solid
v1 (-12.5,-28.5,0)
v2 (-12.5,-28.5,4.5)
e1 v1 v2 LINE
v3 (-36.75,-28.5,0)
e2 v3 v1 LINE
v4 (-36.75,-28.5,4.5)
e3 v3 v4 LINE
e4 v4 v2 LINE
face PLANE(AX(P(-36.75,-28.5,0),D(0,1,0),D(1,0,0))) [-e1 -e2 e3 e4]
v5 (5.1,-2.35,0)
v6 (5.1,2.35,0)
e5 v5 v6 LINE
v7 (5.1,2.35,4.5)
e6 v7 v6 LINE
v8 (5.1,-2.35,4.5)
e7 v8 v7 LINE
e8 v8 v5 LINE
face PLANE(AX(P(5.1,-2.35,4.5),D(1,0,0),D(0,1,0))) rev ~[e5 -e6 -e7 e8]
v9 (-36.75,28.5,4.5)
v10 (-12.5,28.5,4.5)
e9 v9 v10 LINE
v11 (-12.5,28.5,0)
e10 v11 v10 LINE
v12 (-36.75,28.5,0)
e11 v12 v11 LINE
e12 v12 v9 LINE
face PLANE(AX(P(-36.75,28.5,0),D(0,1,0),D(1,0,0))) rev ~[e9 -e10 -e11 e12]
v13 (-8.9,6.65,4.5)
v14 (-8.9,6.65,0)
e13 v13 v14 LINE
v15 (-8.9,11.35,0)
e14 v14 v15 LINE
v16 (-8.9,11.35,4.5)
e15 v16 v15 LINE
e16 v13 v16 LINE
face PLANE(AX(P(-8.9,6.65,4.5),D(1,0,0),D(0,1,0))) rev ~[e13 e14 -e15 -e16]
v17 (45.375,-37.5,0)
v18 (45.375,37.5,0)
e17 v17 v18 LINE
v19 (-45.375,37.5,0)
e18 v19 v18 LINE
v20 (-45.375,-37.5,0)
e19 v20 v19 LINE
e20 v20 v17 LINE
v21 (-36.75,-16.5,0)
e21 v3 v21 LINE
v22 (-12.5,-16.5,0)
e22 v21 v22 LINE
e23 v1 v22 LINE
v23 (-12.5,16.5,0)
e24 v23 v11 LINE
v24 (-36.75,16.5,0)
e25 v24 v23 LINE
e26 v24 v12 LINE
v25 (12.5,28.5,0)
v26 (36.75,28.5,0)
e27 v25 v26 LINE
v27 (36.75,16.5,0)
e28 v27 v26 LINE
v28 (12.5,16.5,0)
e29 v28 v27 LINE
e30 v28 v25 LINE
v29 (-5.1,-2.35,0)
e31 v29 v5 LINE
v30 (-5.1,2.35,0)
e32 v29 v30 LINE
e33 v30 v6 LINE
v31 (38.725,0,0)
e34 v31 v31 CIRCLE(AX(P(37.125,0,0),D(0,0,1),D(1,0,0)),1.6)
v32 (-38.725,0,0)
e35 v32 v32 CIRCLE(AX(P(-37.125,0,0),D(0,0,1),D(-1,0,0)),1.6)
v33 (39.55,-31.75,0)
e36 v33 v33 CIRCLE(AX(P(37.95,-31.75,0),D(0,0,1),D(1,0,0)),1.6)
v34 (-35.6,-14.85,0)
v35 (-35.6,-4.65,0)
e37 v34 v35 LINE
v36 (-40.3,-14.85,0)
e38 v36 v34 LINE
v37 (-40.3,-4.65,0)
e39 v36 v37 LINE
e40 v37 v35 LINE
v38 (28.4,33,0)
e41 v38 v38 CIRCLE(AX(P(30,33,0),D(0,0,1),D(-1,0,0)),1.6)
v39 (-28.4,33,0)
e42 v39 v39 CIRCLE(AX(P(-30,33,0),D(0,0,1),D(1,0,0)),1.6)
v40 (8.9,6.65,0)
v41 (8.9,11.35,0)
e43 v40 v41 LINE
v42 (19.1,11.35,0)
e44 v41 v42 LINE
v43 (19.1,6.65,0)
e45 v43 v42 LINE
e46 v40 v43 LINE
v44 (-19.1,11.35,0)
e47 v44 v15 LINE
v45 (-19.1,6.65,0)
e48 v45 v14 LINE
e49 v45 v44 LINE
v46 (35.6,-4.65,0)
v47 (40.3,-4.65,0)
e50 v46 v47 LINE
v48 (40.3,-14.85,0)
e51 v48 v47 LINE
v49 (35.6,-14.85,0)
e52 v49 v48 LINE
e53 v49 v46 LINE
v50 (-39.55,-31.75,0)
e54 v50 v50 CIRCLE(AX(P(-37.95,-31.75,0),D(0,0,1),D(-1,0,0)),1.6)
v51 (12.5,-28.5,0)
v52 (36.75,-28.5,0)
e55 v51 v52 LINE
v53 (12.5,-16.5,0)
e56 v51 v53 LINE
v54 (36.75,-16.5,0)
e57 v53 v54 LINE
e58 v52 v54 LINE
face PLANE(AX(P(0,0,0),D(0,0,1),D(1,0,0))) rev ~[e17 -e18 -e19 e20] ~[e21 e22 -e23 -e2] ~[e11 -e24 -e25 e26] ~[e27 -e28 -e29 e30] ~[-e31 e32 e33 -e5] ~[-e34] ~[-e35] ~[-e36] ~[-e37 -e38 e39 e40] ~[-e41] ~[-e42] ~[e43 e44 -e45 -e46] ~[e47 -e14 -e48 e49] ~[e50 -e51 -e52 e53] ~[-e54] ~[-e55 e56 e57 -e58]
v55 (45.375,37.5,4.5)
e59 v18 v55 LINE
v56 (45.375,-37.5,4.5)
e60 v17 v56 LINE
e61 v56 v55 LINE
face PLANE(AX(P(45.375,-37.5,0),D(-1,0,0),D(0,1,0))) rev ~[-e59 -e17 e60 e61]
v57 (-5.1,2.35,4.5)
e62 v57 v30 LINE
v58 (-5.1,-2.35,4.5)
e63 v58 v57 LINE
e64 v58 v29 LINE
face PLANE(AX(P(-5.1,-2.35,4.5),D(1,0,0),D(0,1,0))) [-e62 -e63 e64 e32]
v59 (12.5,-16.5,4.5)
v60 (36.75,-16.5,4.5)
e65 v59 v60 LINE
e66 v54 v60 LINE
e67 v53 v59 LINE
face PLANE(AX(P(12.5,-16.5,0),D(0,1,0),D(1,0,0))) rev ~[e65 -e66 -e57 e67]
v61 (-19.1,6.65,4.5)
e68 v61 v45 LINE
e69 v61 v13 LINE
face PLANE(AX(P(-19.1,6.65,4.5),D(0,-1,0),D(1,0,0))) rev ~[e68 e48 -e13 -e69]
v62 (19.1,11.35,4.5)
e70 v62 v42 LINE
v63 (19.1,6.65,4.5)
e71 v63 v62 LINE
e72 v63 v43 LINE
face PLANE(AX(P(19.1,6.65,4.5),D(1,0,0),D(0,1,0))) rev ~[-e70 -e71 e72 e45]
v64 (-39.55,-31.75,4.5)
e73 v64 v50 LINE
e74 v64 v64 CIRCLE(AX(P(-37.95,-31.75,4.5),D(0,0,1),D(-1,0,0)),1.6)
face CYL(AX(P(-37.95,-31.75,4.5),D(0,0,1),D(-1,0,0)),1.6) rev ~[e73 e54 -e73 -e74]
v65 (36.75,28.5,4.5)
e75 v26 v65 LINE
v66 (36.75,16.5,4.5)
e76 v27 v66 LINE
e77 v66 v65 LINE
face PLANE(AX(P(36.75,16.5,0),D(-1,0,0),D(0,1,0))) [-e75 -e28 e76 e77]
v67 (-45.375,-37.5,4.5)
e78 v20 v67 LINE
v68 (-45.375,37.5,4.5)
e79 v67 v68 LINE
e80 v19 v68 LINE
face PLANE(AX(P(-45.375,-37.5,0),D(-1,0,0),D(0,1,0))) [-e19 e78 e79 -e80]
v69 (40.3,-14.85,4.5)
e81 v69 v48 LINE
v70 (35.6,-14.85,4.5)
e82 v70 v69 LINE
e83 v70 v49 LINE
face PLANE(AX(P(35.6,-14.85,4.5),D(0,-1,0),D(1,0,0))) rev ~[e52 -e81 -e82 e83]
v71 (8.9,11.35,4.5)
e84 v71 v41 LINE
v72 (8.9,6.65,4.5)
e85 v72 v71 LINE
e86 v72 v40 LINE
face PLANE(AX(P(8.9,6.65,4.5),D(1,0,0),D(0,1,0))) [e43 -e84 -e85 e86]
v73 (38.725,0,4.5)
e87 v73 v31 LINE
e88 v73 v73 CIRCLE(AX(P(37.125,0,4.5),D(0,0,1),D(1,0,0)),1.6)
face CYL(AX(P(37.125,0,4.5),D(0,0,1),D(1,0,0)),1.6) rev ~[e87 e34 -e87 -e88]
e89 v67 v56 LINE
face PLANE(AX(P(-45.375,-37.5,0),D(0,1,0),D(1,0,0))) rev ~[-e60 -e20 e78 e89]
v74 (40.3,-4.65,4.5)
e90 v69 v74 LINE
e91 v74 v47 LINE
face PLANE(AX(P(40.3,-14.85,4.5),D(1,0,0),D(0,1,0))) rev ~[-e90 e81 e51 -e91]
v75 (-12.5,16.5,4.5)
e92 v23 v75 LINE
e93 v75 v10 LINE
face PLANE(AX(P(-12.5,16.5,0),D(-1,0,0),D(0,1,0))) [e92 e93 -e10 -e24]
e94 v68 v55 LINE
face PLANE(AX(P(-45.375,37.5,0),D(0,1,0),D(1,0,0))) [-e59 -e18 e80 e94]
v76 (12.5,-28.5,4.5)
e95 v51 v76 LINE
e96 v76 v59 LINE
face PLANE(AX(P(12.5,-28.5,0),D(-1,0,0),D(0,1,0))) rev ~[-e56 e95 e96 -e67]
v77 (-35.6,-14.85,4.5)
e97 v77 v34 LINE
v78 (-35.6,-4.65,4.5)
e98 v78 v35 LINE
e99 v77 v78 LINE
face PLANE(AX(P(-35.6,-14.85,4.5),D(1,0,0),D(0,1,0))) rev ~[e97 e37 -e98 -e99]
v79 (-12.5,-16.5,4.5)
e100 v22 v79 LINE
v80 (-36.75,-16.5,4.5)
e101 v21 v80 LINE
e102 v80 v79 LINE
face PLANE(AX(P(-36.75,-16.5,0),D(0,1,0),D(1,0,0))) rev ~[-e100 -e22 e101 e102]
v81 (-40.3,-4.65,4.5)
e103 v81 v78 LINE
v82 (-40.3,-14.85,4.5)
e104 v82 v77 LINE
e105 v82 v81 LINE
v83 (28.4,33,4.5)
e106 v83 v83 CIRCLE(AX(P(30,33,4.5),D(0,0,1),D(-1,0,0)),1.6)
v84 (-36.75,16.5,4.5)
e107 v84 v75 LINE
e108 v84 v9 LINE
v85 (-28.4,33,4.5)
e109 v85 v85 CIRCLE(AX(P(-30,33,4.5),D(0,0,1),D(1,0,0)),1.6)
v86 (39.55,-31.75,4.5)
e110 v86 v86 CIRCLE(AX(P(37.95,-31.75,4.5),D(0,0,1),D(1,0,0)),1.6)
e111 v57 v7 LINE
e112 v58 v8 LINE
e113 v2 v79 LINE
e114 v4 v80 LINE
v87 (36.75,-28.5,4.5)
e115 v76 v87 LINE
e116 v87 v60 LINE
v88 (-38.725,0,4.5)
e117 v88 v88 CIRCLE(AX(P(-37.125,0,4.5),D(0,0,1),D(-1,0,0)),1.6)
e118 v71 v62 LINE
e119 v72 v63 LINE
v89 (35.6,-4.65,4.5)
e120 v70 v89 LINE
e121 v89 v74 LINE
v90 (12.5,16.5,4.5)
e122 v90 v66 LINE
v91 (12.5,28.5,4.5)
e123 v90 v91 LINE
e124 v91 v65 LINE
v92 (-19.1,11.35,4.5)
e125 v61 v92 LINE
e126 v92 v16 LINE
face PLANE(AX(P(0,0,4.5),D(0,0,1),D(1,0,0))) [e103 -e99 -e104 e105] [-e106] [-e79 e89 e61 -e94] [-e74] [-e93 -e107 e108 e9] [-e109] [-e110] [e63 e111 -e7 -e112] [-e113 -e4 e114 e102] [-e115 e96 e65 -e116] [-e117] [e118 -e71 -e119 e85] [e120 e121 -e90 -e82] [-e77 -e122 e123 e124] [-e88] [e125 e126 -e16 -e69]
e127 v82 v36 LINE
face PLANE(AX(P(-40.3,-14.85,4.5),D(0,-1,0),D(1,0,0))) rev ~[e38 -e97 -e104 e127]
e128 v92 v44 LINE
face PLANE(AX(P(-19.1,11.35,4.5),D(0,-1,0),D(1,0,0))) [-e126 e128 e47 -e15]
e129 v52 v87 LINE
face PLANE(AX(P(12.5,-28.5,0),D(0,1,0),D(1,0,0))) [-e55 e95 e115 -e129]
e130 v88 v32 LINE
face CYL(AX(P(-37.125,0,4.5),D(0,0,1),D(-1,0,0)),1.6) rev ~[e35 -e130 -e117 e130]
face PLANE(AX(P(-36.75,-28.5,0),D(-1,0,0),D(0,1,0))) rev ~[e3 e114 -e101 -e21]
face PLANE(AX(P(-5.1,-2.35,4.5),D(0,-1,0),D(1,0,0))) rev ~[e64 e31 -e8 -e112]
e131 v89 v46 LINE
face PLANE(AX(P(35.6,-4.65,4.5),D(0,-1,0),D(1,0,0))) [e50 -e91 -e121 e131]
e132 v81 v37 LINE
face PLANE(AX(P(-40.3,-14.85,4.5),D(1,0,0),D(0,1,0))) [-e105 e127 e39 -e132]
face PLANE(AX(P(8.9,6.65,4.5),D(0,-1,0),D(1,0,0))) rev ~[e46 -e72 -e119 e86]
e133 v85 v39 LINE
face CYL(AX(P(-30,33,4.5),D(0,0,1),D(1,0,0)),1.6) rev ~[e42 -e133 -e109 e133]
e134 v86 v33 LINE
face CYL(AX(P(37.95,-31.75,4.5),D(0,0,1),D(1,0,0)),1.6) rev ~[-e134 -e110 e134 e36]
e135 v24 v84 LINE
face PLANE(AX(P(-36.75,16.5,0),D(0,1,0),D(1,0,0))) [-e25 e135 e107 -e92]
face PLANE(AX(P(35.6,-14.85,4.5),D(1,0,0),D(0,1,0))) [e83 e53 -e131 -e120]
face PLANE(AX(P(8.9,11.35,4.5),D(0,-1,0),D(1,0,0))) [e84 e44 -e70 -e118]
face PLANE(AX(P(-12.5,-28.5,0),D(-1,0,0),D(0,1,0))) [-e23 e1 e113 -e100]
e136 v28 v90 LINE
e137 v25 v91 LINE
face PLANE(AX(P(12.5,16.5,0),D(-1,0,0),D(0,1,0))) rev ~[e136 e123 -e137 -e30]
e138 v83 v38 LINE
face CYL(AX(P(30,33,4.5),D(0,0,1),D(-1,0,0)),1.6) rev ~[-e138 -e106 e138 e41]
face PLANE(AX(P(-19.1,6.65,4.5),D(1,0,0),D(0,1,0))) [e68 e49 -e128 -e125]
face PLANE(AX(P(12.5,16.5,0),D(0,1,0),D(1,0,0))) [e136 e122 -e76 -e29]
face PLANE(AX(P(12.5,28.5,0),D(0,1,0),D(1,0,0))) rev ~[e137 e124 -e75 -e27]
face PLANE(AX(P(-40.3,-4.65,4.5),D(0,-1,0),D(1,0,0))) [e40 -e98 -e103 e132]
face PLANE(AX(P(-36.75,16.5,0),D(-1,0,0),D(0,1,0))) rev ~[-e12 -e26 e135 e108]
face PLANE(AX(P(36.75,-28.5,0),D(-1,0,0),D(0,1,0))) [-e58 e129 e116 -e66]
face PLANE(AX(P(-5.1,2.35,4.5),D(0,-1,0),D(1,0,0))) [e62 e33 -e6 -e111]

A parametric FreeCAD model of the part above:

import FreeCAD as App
import Part
import Sketcher

V = App.Vector

doc = App.newDocument("Part")
body = doc.addObject("PartDesign::Body", "Body")

sketch1 = body.newObject("Sketcher::SketchObject", "Sketch")
sketch1.AttachmentSupport = (doc.getObject("XY_Plane"), [""])
sketch1.MapMode = "FlatFace"
sketch1.addGeometry(Part.LineSegment(V(-45, 38, 0), V(-45, -38, 0)), False)
sketch1.addGeometry(Part.LineSegment(V(-45, -38, 0), V(45, -38, 0)), False)
sketch1.addGeometry(Part.LineSegment(V(45, -38, 0), V(45, 38, 0)), False)
sketch1.addGeometry(Part.LineSegment(V(45, 38, 0), V(-45, 38, 0)), False)
sketch1.addGeometry(Part.LineSegment(V(-12, -28, 0), V(-37, -28, 0)), False)
sketch1.addGeometry(Part.LineSegment(V(-37, -28, 0), V(-37, -16, 0)), False)
sketch1.addGeometry(Part.LineSegment(V(-37, -16, 0), V(-12, -16, 0)), False)
sketch1.addGeometry(Part.LineSegment(V(-12, -16, 0), V(-12, -28, 0)), False)
sketch1.addGeometry(Part.LineSegment(V(37, -28, 0), V(12, -28, 0)), False)
sketch1.addGeometry(Part.LineSegment(V(12, -28, 0), V(12, -16, 0)), False)
sketch1.addGeometry(Part.LineSegment(V(12, -16, 0), V(37, -16, 0)), False)
sketch1.addGeometry(Part.LineSegment(V(37, -16, 0), V(37, -28, 0)), False)
sketch1.addGeometry(Part.LineSegment(V(-12, 16, 0), V(-37, 16, 0)), False)
sketch1.addGeometry(Part.LineSegment(V(-37, 16, 0), V(-37, 28, 0)), False)
sketch1.addGeometry(Part.LineSegment(V(-37, 28, 0), V(-12, 28, 0)), False)
sketch1.addGeometry(Part.LineSegment(V(-12, 28, 0), V(-12, 16, 0)), False)
sketch1.addGeometry(Part.LineSegment(V(37, 16, 0), V(12, 16, 0)), False)
sketch1.addGeometry(Part.LineSegment(V(12, 16, 0), V(12, 28, 0)), False)
sketch1.addGeometry(Part.LineSegment(V(12, 28, 0), V(37, 28, 0)), False)
sketch1.addGeometry(Part.LineSegment(V(37, 28, 0), V(37, 16, 0)), False)
sketch1.addConstraint(Sketcher.Constraint("Coincident", 0, 2, 1, 1))
sketch1.addConstraint(Sketcher.Constraint("Coincident", 1, 2, 2, 1))
sketch1.addConstraint(Sketcher.Constraint("Coincident", 2, 2, 3, 1))
sketch1.addConstraint(Sketcher.Constraint("Coincident", 3, 2, 0, 1))
sketch1.addConstraint(Sketcher.Constraint("Coincident", 4, 2, 5, 1))
sketch1.addConstraint(Sketcher.Constraint("Coincident", 5, 2, 6, 1))
sketch1.addConstraint(Sketcher.Constraint("Coincident", 6, 2, 7, 1))
sketch1.addConstraint(Sketcher.Constraint("Coincident", 7, 2, 4, 1))
sketch1.addConstraint(Sketcher.Constraint("Coincident", 8, 2, 9, 1))
sketch1.addConstraint(Sketcher.Constraint("Coincident", 9, 2, 10, 1))
sketch1.addConstraint(Sketcher.Constraint("Coincident", 10, 2, 11, 1))
sketch1.addConstraint(Sketcher.Constraint("Coincident", 11, 2, 8, 1))
sketch1.addConstraint(Sketcher.Constraint("Coincident", 12, 2, 13, 1))
sketch1.addConstraint(Sketcher.Constraint("Coincident", 13, 2, 14, 1))
sketch1.addConstraint(Sketcher.Constraint("Coincident", 14, 2, 15, 1))
sketch1.addConstraint(Sketcher.Constraint("Coincident", 15, 2, 12, 1))
sketch1.addConstraint(Sketcher.Constraint("Coincident", 16, 2, 17, 1))
sketch1.addConstraint(Sketcher.Constraint("Coincident", 17, 2, 18, 1))
sketch1.addConstraint(Sketcher.Constraint("Coincident", 18, 2, 19, 1))
sketch1.addConstraint(Sketcher.Constraint("Coincident", 19, 2, 16, 1))
sketch1.addConstraint(Sketcher.Constraint("Vertical", 0))
sketch1.addConstraint(Sketcher.Constraint("Horizontal", 1))
sketch1.addConstraint(Sketcher.Constraint("Vertical", 2))
sketch1.addConstraint(Sketcher.Constraint("Horizontal", 3))
sketch1.addConstraint(Sketcher.Constraint("Horizontal", 4))
sketch1.addConstraint(Sketcher.Constraint("Vertical", 5))
sketch1.addConstraint(Sketcher.Constraint("Horizontal", 6))
sketch1.addConstraint(Sketcher.Constraint("Vertical", 7))
sketch1.addConstraint(Sketcher.Constraint("Horizontal", 8))
sketch1.addConstraint(Sketcher.Constraint("Vertical", 9))
sketch1.addConstraint(Sketcher.Constraint("Horizontal", 10))
sketch1.addConstraint(Sketcher.Constraint("Vertical", 11))
sketch1.addConstraint(Sketcher.Constraint("Horizontal", 12))
sketch1.addConstraint(Sketcher.Constraint("Vertical", 13))
sketch1.addConstraint(Sketcher.Constraint("Horizontal", 14))
sketch1.addConstraint(Sketcher.Constraint("Vertical", 15))
sketch1.addConstraint(Sketcher.Constraint("Horizontal", 16))
sketch1.addConstraint(Sketcher.Constraint("Vertical", 17))
sketch1.addConstraint(Sketcher.Constraint("Horizontal", 18))
sketch1.addConstraint(Sketcher.Constraint("Vertical", 19))
sketch1.addConstraint(Sketcher.Constraint("Symmetric", 0, 2, 2, 2, -1, 1))
sketch1.addConstraint(Sketcher.Constraint("Symmetric", 10, 2, 12, 2, -1, 1))
sketch1.addConstraint(Sketcher.Constraint("Symmetric", 8, 2, 14, 2, -1, 1))
sketch1.addConstraint(Sketcher.Constraint("Symmetric", 6, 2, 16, 2, -1, 1))
sketch1.addConstraint(Sketcher.Constraint("Symmetric", 4, 2, 18, 2, -1, 1))
sketch1.addConstraint(Sketcher.Constraint("Symmetric", 7, 2, 8, 2, -2))
sketch1.addConstraint(Sketcher.Constraint("Symmetric", 5, 2, 10, 2, -2))
sketch1.addConstraint(Sketcher.Constraint("DistanceY", 0, 2, 0, 1, 75.0))
sketch1.addConstraint(Sketcher.Constraint("DistanceY", 5, 1, 5, 2, 12.0))
sketch1.addConstraint(Sketcher.Constraint("DistanceY", 0, 2, 4, 2, 9.0))
sketch1.addConstraint(Sketcher.Constraint("DistanceX", 7, 2, 8, 2, 25.0))
sketch1.addConstraint(Sketcher.Constraint("DistanceX", 1, 1, 1, 2, 90.75))
sketch1.addConstraint(Sketcher.Constraint("DistanceX", 4, 2, 4, 1, 24.25))
pad1 = body.newObject("PartDesign::Pad", "Pad")
pad1.Profile = sketch1
pad1.Length = 4.5

sketch2 = body.newObject("Sketcher::SketchObject", "Sketch001")
sketch2.AttachmentSupport = (doc.getObject("XY_Plane"), [""])
sketch2.MapMode = "FlatFace"
sketch2.AttachmentOffset = App.Placement(V(0, 0, 4.5), App.Rotation())
sketch2.addGeometry(Part.Circle(V(-30, 33, 0), V(0, 0, 1), 1.6), False)
sketch2.addGeometry(Part.Circle(V(30, 33, 0), V(0, 0, 1), 1.6), False)
sketch2.addGeometry(Part.Circle(V(37.1, 0, 0), V(0, 0, 1), 1.6), False)
sketch2.addGeometry(Part.Circle(V(-37.1, 0, 0), V(0, 0, 1), 1.6), False)
sketch2.addConstraint(Sketcher.Constraint("Equal", 0, 1))
sketch2.addConstraint(Sketcher.Constraint("Equal", 1, 2))
sketch2.addConstraint(Sketcher.Constraint("Equal", 2, 3))
sketch2.addConstraint(Sketcher.Constraint("Symmetric", 2, 3, 3, 3, -1, 1))
sketch2.addConstraint(Sketcher.Constraint("Symmetric", 0, 3, 1, 3, -2))
sketch2.addConstraint(Sketcher.Constraint("PointOnObject", 2, 3, -1))
sketch2.addConstraint(Sketcher.Constraint("Diameter", 0, 3.2))
sketch2.addConstraint(Sketcher.Constraint("DistanceX", 0, 3, -1, 1, 30.0))
sketch2.addConstraint(Sketcher.Constraint("DistanceY", -1, 1, 0, 3, 33.0))
sketch2.addConstraint(Sketcher.Constraint("DistanceX", 3, 3, 2, 3, 74.25))
pocket1 = body.newObject("PartDesign::Pocket", "Pocket")
pocket1.Profile = sketch2
pocket1.Type = "ThroughAll"

sketch3 = body.newObject("Sketcher::SketchObject", "Sketch002")
sketch3.AttachmentSupport = (doc.getObject("XY_Plane"), [""])
sketch3.MapMode = "FlatFace"
sketch3.AttachmentOffset = App.Placement(V(0, 0, 4.5), App.Rotation())
sketch3.addGeometry(Part.LineSegment(V(-19.1, 11.3, 0), V(-19.1, 6.7, 0)), False)
sketch3.addGeometry(Part.LineSegment(V(-19.1, 6.7, 0), V(-8.9, 6.7, 0)), False)
sketch3.addGeometry(Part.LineSegment(V(-8.9, 6.7, 0), V(-8.9, 11.3, 0)), False)
sketch3.addGeometry(Part.LineSegment(V(-8.9, 11.3, 0), V(-19.1, 11.3, 0)), False)
sketch3.addGeometry(Part.LineSegment(V(8.9, 11.3, 0), V(8.9, 6.7, 0)), False)
sketch3.addGeometry(Part.LineSegment(V(8.9, 6.7, 0), V(19.1, 6.7, 0)), False)
sketch3.addGeometry(Part.LineSegment(V(19.1, 6.7, 0), V(19.1, 11.3, 0)), False)
sketch3.addGeometry(Part.LineSegment(V(19.1, 11.3, 0), V(8.9, 11.3, 0)), False)
sketch3.addConstraint(Sketcher.Constraint("Coincident", 0, 2, 1, 1))
sketch3.addConstraint(Sketcher.Constraint("Coincident", 1, 2, 2, 1))
sketch3.addConstraint(Sketcher.Constraint("Coincident", 2, 2, 3, 1))
sketch3.addConstraint(Sketcher.Constraint("Coincident", 3, 2, 0, 1))
sketch3.addConstraint(Sketcher.Constraint("Coincident", 4, 2, 5, 1))
sketch3.addConstraint(Sketcher.Constraint("Coincident", 5, 2, 6, 1))
sketch3.addConstraint(Sketcher.Constraint("Coincident", 6, 2, 7, 1))
sketch3.addConstraint(Sketcher.Constraint("Coincident", 7, 2, 4, 1))
sketch3.addConstraint(Sketcher.Constraint("Vertical", 0))
sketch3.addConstraint(Sketcher.Constraint("Horizontal", 1))
sketch3.addConstraint(Sketcher.Constraint("Vertical", 2))
sketch3.addConstraint(Sketcher.Constraint("Horizontal", 3))
sketch3.addConstraint(Sketcher.Constraint("Vertical", 4))
sketch3.addConstraint(Sketcher.Constraint("Horizontal", 5))
sketch3.addConstraint(Sketcher.Constraint("Vertical", 6))
sketch3.addConstraint(Sketcher.Constraint("Horizontal", 7))
sketch3.addConstraint(Sketcher.Constraint("Symmetric", 1, 2, 4, 2, -2))
sketch3.addConstraint(Sketcher.Constraint("Symmetric", 3, 2, 6, 2, -2))
sketch3.addConstraint(Sketcher.Constraint("DistanceX", 1, 1, 1, 2, 10.2))
sketch3.addConstraint(Sketcher.Constraint("DistanceY", 0, 2, 0, 1, 4.7))
sketch3.addConstraint(Sketcher.Constraint("DistanceX", 0, 2, 4, 2, 28.0))
sketch3.addConstraint(Sketcher.Constraint("DistanceY", -1, 1, 0, 2, 6.65))
pocket2 = body.newObject("PartDesign::Pocket", "Pocket001")
pocket2.Profile = sketch3
pocket2.Type = "ThroughAll"

sketch4 = body.newObject("Sketcher::SketchObject", "Sketch003")
sketch4.AttachmentSupport = (doc.getObject("XY_Plane"), [""])
sketch4.MapMode = "FlatFace"
sketch4.AttachmentOffset = App.Placement(V(0, 0, 4.5), App.Rotation())
sketch4.addGeometry(Part.LineSegment(V(-5.1, 2.4, 0), V(-5.1, -2.4, 0)), False)
sketch4.addGeometry(Part.LineSegment(V(-5.1, -2.4, 0), V(5.1, -2.4, 0)), False)
sketch4.addGeometry(Part.LineSegment(V(5.1, -2.4, 0), V(5.1, 2.4, 0)), False)
sketch4.addGeometry(Part.LineSegment(V(5.1, 2.4, 0), V(-5.1, 2.4, 0)), False)
sketch4.addConstraint(Sketcher.Constraint("Coincident", 0, 2, 1, 1))
sketch4.addConstraint(Sketcher.Constraint("Coincident", 1, 2, 2, 1))
sketch4.addConstraint(Sketcher.Constraint("Coincident", 2, 2, 3, 1))
sketch4.addConstraint(Sketcher.Constraint("Coincident", 3, 2, 0, 1))
sketch4.addConstraint(Sketcher.Constraint("Vertical", 0))
sketch4.addConstraint(Sketcher.Constraint("Horizontal", 1))
sketch4.addConstraint(Sketcher.Constraint("Vertical", 2))
sketch4.addConstraint(Sketcher.Constraint("Horizontal", 3))
sketch4.addConstraint(Sketcher.Constraint("Symmetric", 0, 2, 2, 2, -1, 1))
sketch4.addConstraint(Sketcher.Constraint("DistanceX", 1, 1, 1, 2, 10.2))
sketch4.addConstraint(Sketcher.Constraint("DistanceY", 0, 2, 0, 1, 4.7))
pocket3 = body.newObject("PartDesign::Pocket", "Pocket002")
pocket3.Profile = sketch4
pocket3.Type = "ThroughAll"

sketch5 = body.newObject("Sketcher::SketchObject", "Sketch004")
sketch5.AttachmentSupport = (doc.getObject("XY_Plane"), [""])
sketch5.MapMode = "FlatFace"
sketch5.AttachmentOffset = App.Placement(V(0, 0, 4.5), App.Rotation())
sketch5.addGeometry(Part.Circle(V(38, -31.8, 0), V(0, 0, 1), 1.6), False)
sketch5.addGeometry(Part.Circle(V(-38, -31.8, 0), V(0, 0, 1), 1.6), False)
sketch5.addGeometry(Part.LineSegment(V(35.6, -4.7, 0), V(35.6, -14.8, 0)), False)
sketch5.addGeometry(Part.LineSegment(V(35.6, -14.8, 0), V(40.3, -14.8, 0)), False)
sketch5.addGeometry(Part.LineSegment(V(40.3, -14.8, 0), V(40.3, -4.7, 0)), False)
sketch5.addGeometry(Part.LineSegment(V(40.3, -4.7, 0), V(35.6, -4.7, 0)), False)
sketch5.addGeometry(Part.LineSegment(V(-40.3, -4.7, 0), V(-40.3, -14.8, 0)), False)
sketch5.addGeometry(Part.LineSegment(V(-40.3, -14.8, 0), V(-35.6, -14.8, 0)), False)
sketch5.addGeometry(Part.LineSegment(V(-35.6, -14.8, 0), V(-35.6, -4.7, 0)), False)
sketch5.addGeometry(Part.LineSegment(V(-35.6, -4.7, 0), V(-40.3, -4.7, 0)), False)
sketch5.addConstraint(Sketcher.Constraint("Coincident", 2, 2, 3, 1))
sketch5.addConstraint(Sketcher.Constraint("Coincident", 3, 2, 4, 1))
sketch5.addConstraint(Sketcher.Constraint("Coincident", 4, 2, 5, 1))
sketch5.addConstraint(Sketcher.Constraint("Coincident", 5, 2, 2, 1))
sketch5.addConstraint(Sketcher.Constraint("Coincident", 6, 2, 7, 1))
sketch5.addConstraint(Sketcher.Constraint("Coincident", 7, 2, 8, 1))
sketch5.addConstraint(Sketcher.Constraint("Coincident", 8, 2, 9, 1))
sketch5.addConstraint(Sketcher.Constraint("Coincident", 9, 2, 6, 1))
sketch5.addConstraint(Sketcher.Constraint("Vertical", 2))
sketch5.addConstraint(Sketcher.Constraint("Horizontal", 3))
sketch5.addConstraint(Sketcher.Constraint("Vertical", 4))
sketch5.addConstraint(Sketcher.Constraint("Horizontal", 5))
sketch5.addConstraint(Sketcher.Constraint("Vertical", 6))
sketch5.addConstraint(Sketcher.Constraint("Horizontal", 7))
sketch5.addConstraint(Sketcher.Constraint("Vertical", 8))
sketch5.addConstraint(Sketcher.Constraint("Horizontal", 9))
sketch5.addConstraint(Sketcher.Constraint("Equal", 0, 1))
sketch5.addConstraint(Sketcher.Constraint("Symmetric", 0, 3, 1, 3, -2))
sketch5.addConstraint(Sketcher.Constraint("Symmetric", 3, 2, 6, 2, -2))
sketch5.addConstraint(Sketcher.Constraint("Symmetric", 5, 2, 8, 2, -2))
sketch5.addConstraint(Sketcher.Constraint("Diameter", 0, 3.2))
sketch5.addConstraint(Sketcher.Constraint("DistanceX", 3, 1, 3, 2, 4.7))
sketch5.addConstraint(Sketcher.Constraint("DistanceY", 2, 2, 2, 1, 10.2))
sketch5.addConstraint(Sketcher.Constraint("DistanceX", -1, 1, 2, 2, 35.6))
sketch5.addConstraint(Sketcher.Constraint("DistanceX", 1, 3, 0, 3, 75.9))
sketch5.addConstraint(Sketcher.Constraint("DistanceY", 0, 3, 2, 2, 16.9))
sketch5.addConstraint(Sketcher.Constraint("DistanceY", 0, 3, -1, 1, 31.75))
pocket4 = body.newObject("PartDesign::Pocket", "Pocket003")
pocket4.Profile = sketch5
pocket4.Type = "ThroughAll"

doc.recompute()
